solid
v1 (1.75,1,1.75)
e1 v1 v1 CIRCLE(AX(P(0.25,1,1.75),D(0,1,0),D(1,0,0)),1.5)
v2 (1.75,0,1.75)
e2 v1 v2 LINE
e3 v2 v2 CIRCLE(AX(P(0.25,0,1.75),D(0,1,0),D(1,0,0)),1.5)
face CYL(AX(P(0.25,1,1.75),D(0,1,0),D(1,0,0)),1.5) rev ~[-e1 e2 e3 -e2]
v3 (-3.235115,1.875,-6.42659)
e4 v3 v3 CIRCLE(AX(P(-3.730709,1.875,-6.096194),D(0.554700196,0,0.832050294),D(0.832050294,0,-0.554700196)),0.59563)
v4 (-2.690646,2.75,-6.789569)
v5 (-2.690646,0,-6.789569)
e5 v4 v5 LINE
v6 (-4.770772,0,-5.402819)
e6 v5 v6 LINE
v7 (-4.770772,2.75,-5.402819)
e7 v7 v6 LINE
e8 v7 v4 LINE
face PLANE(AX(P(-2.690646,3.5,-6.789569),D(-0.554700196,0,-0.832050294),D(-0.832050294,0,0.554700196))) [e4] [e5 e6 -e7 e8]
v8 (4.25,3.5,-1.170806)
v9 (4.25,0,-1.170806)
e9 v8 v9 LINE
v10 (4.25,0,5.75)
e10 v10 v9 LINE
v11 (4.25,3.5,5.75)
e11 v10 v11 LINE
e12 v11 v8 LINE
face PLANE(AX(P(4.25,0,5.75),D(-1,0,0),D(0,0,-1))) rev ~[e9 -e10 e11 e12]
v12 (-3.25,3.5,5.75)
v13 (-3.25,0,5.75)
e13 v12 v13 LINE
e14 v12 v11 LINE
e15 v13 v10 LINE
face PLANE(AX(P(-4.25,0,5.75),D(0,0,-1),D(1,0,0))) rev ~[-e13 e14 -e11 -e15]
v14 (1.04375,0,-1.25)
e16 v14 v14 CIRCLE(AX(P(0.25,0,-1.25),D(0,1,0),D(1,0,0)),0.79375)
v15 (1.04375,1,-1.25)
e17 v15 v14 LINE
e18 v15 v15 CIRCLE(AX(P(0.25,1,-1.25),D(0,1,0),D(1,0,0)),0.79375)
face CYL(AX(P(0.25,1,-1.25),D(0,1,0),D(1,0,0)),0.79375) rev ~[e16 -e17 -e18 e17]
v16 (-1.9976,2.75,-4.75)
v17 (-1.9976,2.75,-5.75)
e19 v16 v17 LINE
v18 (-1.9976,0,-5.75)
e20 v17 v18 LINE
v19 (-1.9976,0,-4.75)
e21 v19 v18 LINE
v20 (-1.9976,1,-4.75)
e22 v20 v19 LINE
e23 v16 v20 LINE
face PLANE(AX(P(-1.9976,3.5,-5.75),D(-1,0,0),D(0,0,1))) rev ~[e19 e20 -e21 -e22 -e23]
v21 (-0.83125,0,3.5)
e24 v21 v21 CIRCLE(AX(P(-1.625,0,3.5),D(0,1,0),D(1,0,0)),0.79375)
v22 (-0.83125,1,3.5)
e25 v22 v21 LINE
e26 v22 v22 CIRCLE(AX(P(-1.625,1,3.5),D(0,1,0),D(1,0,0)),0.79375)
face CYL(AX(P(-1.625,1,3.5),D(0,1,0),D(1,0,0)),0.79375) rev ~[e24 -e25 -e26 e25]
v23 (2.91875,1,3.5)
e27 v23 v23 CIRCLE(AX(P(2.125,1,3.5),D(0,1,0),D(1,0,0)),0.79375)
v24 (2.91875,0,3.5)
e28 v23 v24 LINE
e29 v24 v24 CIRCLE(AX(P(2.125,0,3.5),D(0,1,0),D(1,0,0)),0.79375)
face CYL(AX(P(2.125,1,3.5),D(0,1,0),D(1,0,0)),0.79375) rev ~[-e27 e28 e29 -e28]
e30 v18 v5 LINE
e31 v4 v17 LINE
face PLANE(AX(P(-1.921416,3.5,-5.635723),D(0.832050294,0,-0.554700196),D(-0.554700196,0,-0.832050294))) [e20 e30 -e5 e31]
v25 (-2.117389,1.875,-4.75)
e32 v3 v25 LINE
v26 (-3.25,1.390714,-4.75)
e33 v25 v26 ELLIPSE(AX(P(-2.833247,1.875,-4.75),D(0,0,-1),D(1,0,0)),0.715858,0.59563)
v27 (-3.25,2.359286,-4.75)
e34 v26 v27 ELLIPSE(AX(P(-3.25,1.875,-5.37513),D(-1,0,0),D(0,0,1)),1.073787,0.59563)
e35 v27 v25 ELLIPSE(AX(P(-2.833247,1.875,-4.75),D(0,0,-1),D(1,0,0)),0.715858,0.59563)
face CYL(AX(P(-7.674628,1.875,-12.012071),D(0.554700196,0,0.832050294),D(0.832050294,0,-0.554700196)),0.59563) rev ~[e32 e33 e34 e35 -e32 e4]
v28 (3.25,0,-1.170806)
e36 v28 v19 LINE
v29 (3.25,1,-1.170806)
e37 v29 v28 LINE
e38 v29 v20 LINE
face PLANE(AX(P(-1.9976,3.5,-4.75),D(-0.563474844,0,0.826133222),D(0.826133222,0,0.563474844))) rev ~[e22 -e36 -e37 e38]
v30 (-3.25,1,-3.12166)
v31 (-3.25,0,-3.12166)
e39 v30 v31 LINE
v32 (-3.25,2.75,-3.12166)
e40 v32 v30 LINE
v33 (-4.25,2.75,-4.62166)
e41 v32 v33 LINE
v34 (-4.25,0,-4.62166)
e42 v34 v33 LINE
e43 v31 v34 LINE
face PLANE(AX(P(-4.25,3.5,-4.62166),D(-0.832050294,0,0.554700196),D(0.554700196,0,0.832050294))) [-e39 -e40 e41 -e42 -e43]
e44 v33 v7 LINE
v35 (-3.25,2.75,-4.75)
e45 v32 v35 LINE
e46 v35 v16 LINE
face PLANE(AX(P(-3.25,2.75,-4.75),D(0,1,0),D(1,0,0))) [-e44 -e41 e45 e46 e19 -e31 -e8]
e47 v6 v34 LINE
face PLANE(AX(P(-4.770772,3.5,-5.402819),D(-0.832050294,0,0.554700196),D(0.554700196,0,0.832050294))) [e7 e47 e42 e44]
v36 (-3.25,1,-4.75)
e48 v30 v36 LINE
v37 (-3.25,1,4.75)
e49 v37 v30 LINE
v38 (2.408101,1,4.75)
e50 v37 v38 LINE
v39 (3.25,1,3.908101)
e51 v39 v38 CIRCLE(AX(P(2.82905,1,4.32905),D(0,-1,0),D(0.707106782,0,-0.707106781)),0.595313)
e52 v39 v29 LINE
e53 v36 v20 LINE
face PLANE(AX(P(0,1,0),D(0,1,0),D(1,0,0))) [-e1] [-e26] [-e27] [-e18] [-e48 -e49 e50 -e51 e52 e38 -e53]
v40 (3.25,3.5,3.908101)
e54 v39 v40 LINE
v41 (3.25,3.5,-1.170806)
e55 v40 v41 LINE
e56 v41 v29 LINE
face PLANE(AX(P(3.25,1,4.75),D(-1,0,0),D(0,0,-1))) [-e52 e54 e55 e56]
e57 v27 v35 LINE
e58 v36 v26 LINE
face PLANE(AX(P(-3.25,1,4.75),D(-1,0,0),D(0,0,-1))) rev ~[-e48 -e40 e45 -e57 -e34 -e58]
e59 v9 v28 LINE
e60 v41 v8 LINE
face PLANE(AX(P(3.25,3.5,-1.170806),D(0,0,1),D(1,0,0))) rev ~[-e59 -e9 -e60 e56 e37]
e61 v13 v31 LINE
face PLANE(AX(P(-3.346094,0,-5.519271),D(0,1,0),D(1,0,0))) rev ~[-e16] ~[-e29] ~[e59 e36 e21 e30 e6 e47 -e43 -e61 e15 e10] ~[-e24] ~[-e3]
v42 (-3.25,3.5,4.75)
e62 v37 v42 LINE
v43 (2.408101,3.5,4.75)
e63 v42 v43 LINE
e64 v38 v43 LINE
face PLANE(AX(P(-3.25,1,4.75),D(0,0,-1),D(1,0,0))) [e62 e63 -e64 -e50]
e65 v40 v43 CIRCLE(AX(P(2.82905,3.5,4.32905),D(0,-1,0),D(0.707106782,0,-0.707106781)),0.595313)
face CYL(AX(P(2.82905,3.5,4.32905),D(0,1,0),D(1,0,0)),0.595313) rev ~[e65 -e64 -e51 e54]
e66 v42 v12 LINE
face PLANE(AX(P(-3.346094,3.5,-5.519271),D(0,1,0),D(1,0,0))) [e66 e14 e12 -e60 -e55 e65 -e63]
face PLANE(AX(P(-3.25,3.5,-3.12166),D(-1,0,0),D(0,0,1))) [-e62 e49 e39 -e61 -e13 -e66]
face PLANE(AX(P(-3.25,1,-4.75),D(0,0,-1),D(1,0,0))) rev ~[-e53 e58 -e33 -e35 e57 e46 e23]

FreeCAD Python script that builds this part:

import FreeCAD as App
import Part
import Sketcher


def add_polygon(sketch, points):
    """Adds a closed chain of lines whose ends are joined by coincident constraints."""
    first, n = sketch.GeometryCount, len(points)
    for a, b in zip(points, points[1:] + points[:1]):
        sketch.addGeometry(Part.LineSegment(App.Vector(*a, 0), App.Vector(*b, 0)), False)
    for i in range(n):
        sketch.addConstraint(Sketcher.Constraint("Coincident", first + i, 2, first + (i + 1) % n, 1))

doc = App.newDocument("Part")
body = doc.addObject("PartDesign::Body", "Body")

# Sketch on XZ plane
sketch1 = body.newObject("Sketcher::SketchObject", "Sketch")
sketch1.AttachmentSupport = (doc.getObject("XZ_Plane"), [""])
sketch1.MapMode = "FlatFace"
add_polygon(sketch1, [(-4, -6), (-4, 6), (4, 6), (4, -6)])  # lines 0-3
sketch1.addConstraint(Sketcher.Constraint("Vertical", 0))
sketch1.addConstraint(Sketcher.Constraint("Horizontal", 1))
sketch1.addConstraint(Sketcher.Constraint("Vertical", 2))
sketch1.addConstraint(Sketcher.Constraint("Horizontal", 3))
sketch1.addConstraint(Sketcher.Constraint("Symmetric", 0, 2, 2, 2, -1, 1))
sketch1.addConstraint(Sketcher.Constraint("DistanceX", 1, 1, 1, 2, 8.5))
sketch1.addConstraint(Sketcher.Constraint("DistanceY", 0, 1, 0, 2, 11.5))
pad1 = body.newObject("PartDesign::Pad", "Pad")
pad1.Profile = sketch1
pad1.Length = 3.5
pad1.Reversed = True

# Sketch on XZ plane
sketch2 = body.newObject("Sketcher::SketchObject", "Sketch001")
sketch2.AttachmentSupport = (doc.getObject("XZ_Plane"), [""])
sketch2.MapMode = "FlatFace"
sketch2.AttachmentOffset = App.Placement(App.Vector(0, 0, -1), App.Rotation())
add_polygon(sketch2, [(-3, -5), (-3, 5), (3, 5), (3, -5)])  # lines 0-3
sketch2.addConstraint(Sketcher.Constraint("Vertical", 0))
sketch2.addConstraint(Sketcher.Constraint("Horizontal", 1))
sketch2.addConstraint(Sketcher.Constraint("Vertical", 2))
sketch2.addConstraint(Sketcher.Constraint("Horizontal", 3))
sketch2.addConstraint(Sketcher.Constraint("Symmetric", 0, 2, 2, 2, -1, 1))
sketch2.addConstraint(Sketcher.Constraint("DistanceX", 1, 1, 1, 2, 6.5))
sketch2.addConstraint(Sketcher.Constraint("DistanceY", 0, 1, 0, 2, 9.5))
pocket1 = body.newObject("PartDesign::Pocket", "Pocket")
pocket1.Profile = sketch2
pocket1.Length = 2.5

# Sketch on XZ plane
sketch3 = body.newObject("Sketcher::SketchObject", "Sketch002")
sketch3.AttachmentSupport = (doc.getObject("XZ_Plane"), [""])
sketch3.MapMode = "FlatFace"
sketch3.AttachmentOffset = App.Placement(App.Vector(0, 0, -1), App.Rotation())
sketch3.addGeometry(Part.Circle(App.Vector(0.2, 1.8, 0), App.Vector(0, 0, 1), 1.5), False)
sketch3.addConstraint(Sketcher.Constraint("Diameter", 0, 3.0))
sketch3.addConstraint(Sketcher.Constraint("DistanceX", -1, 1, 0, 3, 0.25))
sketch3.addConstraint(Sketcher.Constraint("DistanceY", -1, 1, 0, 3, 1.75))
pocket2 = body.newObject("PartDesign::Pocket", "Pocket001")
pocket2.Profile = sketch3
pocket2.Type = "ThroughAll"
pocket2.Reversed = True

# Sketch on XZ plane
sketch4 = body.newObject("Sketcher::SketchObject", "Sketch003")
sketch4.AttachmentSupport = (doc.getObject("XZ_Plane"), [""])
sketch4.MapMode = "FlatFace"
sketch4.AttachmentOffset = App.Placement(App.Vector(0, 0, -3.5), App.Rotation())
sketch4.addGeometry(Part.Circle(App.Vector(2.8, 4.3, 0), App.Vector(0, 0, 1), 0.6), False)
sketch4.addConstraint(Sketcher.Constraint("Diameter", 0, 1.190625))
sketch4.addConstraint(Sketcher.Constraint("DistanceX", -1, 1, 0, 3, 2.82905))
sketch4.addConstraint(Sketcher.Constraint("DistanceY", -1, 1, 0, 3, 4.32905))
pocket3 = body.newObject("PartDesign::Pocket", "Pocket002")
pocket3.Profile = sketch4
pocket3.Length = 2.5
pocket3.Reversed = True

# Sketch on XZ plane
sketch5 = body.newObject("Sketcher::SketchObject", "Sketch004")
sketch5.AttachmentSupport = (doc.getObject("XZ_Plane"), [""])
sketch5.MapMode = "FlatFace"
sketch5.AttachmentOffset = App.Placement(App.Vector(0, 0, -1), App.Rotation())
sketch5.addGeometry(Part.Circle(App.Vector(0.2, -1.2, 0), App.Vector(0, 0, 1), 0.8), False)
sketch5.addGeometry(Part.Circle(App.Vector(-1.6, 3.5, 0), App.Vector(0, 0, 1), 0.8), False)
sketch5.addGeometry(Part.Circle(App.Vector(2.1, 3.5, 0), App.Vector(0, 0, 1), 0.8), False)
sketch5.addConstraint(Sketcher.Constraint("Equal", 0, 1))
sketch5.addConstraint(Sketcher.Constraint("Equal", 1, 2))
sketch5.addConstraint(Sketcher.Constraint("Horizontal", 1, 3, 2, 3))
sketch5.addConstraint(Sketcher.Constraint("Diameter", 0, 1.5875))
sketch5.addConstraint(Sketcher.Constraint("DistanceY", -1, 1, 1, 3, 3.5))
sketch5.addConstraint(Sketcher.Constraint("DistanceX", -1, 1, 0, 3, 0.25))
sketch5.addConstraint(Sketcher.Constraint("DistanceY", 0, 3, -1, 1, 1.25))
sketch5.addConstraint(Sketcher.Constraint("DistanceX", 1, 3, 2, 3, 3.75))
sketch5.addConstraint(Sketcher.Constraint("DistanceX", 1, 3, -1, 1, 1.625))
pocket4 = body.newObject("PartDesign::Pocket", "Pocket003")
pocket4.Profile = sketch5
pocket4.Type = "ThroughAll"
pocket4.Reversed = True

# Sketch on XZ plane
sketch6 = body.newObject("Sketcher::SketchObject", "Sketch005")
sketch6.AttachmentSupport = (doc.getObject("XZ_Plane"), [""])
sketch6.MapMode = "FlatFace"
sketch6.AttachmentOffset = App.Placement(App.Vector(0, 0, -3.5), App.Rotation())
add_polygon(sketch6, [(-2.7, -6.8), (-4.8, -5.4), (-4, -4.2), (-3.4, -4.6), (-2.5, -5.2), (-1.9, -5.6)])  # lines 0-5
sketch6.addConstraint(Sketcher.Constraint("Perpendicular", 0, 1))
sketch6.addConstraint(Sketcher.Constraint("Perpendicular", 1, 2))
sketch6.addConstraint(Sketcher.Constraint("Parallel", 2, 3))
sketch6.addConstraint(Sketcher.Constraint("Parallel", 3, 4))
sketch6.addConstraint(Sketcher.Constraint("Perpendicular", 4, 5))
sketch6.addConstraint(Sketcher.Constraint("Equal", 2, 4))
sketch6.addConstraint(Sketcher.Constraint("Distance", 0, 2.5))
sketch6.addConstraint(Sketcher.Constraint("Distance", 1, 1.38675))
sketch6.addConstraint(Sketcher.Constraint("Distance", 2, 0.70898))
sketch6.addConstraint(Sketcher.Constraint("DistanceY", 0, 2, -1, 1, 5.402819))
sketch6.addConstraint(Sketcher.Constraint("DistanceX", 1, 2, -1, 1, 4.001541))
sketch6.addConstraint(Sketcher.Constraint("DistanceY", 3, 2, -1, 1, 5.242452))
pad2 = body.newObject("PartDesign::Pad", "Pad001")
pad2.Profile = sketch6
pad2.Length = 3.5

# Sketch on XZ plane
sketch7 = body.newObject("Sketcher::SketchObject", "Sketch006")
sketch7.AttachmentSupport = (doc.getObject("XZ_Plane"), [""])
sketch7.MapMode = "FlatFace"
sketch7.AttachmentOffset = App.Placement(App.Vector(0, 0, -3.5), App.Rotation())
add_polygon(sketch7, [(-6, -7), (-6, -2), (0, -2), (0, -7)])  # lines 0-3
sketch7.addConstraint(Sketcher.Constraint("Vertical", 0))
sketch7.addConstraint(Sketcher.Constraint("Horizontal", 1))
sketch7.addConstraint(Sketcher.Constraint("Vertical", 2))
sketch7.addConstraint(Sketcher.Constraint("Horizontal", 3))
sketch7.addConstraint(Sketcher.Constraint("DistanceX", 1, 1, 1, 2, 5.965259))
sketch7.addConstraint(Sketcher.Constraint("DistanceY", 0, 1, 0, 2, 5.13296))
sketch7.addConstraint(Sketcher.Constraint("DistanceX", 0, 2, -1, 1, 6.232629))
sketch7.addConstraint(Sketcher.Constraint("DistanceY", 0, 2, -1, 1, 2.18352))
pocket5 = body.newObject("PartDesign::Pocket", "Pocket004")
pocket5.Profile = sketch7
pocket5.Length = 0.75
pocket5.Reversed = True

# Sketch on an angled plane
sketch8 = body.newObject("Sketcher::SketchObject", "Sketch007")
sketch8.Placement = App.Placement(App.Vector(-3.961538, 0, -5.942308), App.Rotation(App.Vector(-0.832050294, 0, 0.554700196), App.Vector(0, 0.999999999, 0), App.Vector(-0.554700196, 0, -0.832050294), "ZXY"))
sketch8.addGeometry(Part.Circle(App.Vector(-0.3, 1.9, 0), App.Vector(0, 0, 1), 0.6), False)
sketch8.addConstraint(Sketcher.Constraint("Diameter", 0, 1.19126))
sketch8.addConstraint(Sketcher.Constraint("DistanceY", -1, 1, 0, 3, 1.875))
sketch8.addConstraint(Sketcher.Constraint("DistanceX", 0, 3, -1, 1, 0.277422))
doc.recompute()
hole = body.newObject("PartDesign::Hole", "Hole")
hole.Profile = sketch8
hole.ThreadType = "None"
hole.Diameter = 1.19126
hole.DepthType = "Dimension"
hole.Depth = 7.11
hole.DrillPoint = "Angled"
hole.DrillPointAngle = 118

# Sketch on XZ plane
sketch9 = body.newObject("Sketcher::SketchObject", "Sketch008")
sketch9.AttachmentSupport = (doc.getObject("XZ_Plane"), [""])
sketch9.MapMode = "FlatFace"
sketch9.AttachmentOffset = App.Placement(App.Vector(0, 0, -3.5), App.Rotation())
add_polygon(sketch9, [(-2, -5.8), (-2, -4.8), (3.2, -1.2), (4.2, -1.2), (4.2, -5.8)])  # lines 0-4
sketch9.addConstraint(Sketcher.Constraint("Vertical", 0))
sketch9.addConstraint(Sketcher.Constraint("Horizontal", 2))
sketch9.addConstraint(Sketcher.Constraint("Vertical", 3))
sketch9.addConstraint(Sketcher.Constraint("Horizontal", 4))
sketch9.addConstraint(Sketcher.Constraint("Equal", 2, 0))
sketch9.addConstraint(Sketcher.Constraint("DistanceX", 2, 1, 2, 2, 1.0))
sketch9.addConstraint(Sketcher.Constraint("DistanceY", 0, 2, -1, 1, 4.75))
sketch9.addConstraint(Sketcher.Constraint("DistanceX", -1, 1, 1, 2, 3.25))
sketch9.addConstraint(Sketcher.Constraint("DistanceX", 4, 2, 4, 1, 6.2476))
sketch9.addConstraint(Sketcher.Constraint("DistanceY", 3, 2, 3, 1, 4.579194))
pocket6 = body.newObject("PartDesign::Pocket", "Pocket005")
pocket6.Profile = sketch9
pocket6.Length = 3.5
pocket6.Reversed = True

# Sketch on XZ plane
sketch10 = body.newObject("Sketcher::SketchObject", "Sketch009")
sketch10.AttachmentSupport = (doc.getObject("XZ_Plane"), [""])
sketch10.MapMode = "FlatFace"
sketch10.AttachmentOffset = App.Placement(App.Vector(0, 0, -3.5), App.Rotation())
add_polygon(sketch10, [(-3.2, -3.1), (-4.2, -4.6), (-4.2, 5.8), (-3.2, 5.8)])  # lines 0-3
sketch10.addConstraint(Sketcher.Constraint("Vertical", 1))
sketch10.addConstraint(Sketcher.Constraint("Horizontal", 2))
sketch10.addConstraint(Sketcher.Constraint("Vertical", 3))
sketch10.addConstraint(Sketcher.Constraint("DistanceX", 2, 1, 2, 2, 1.0))
sketch10.addConstraint(Sketcher.Constraint("DistanceY", 0, 2, 3, 2, 1.5))
sketch10.addConstraint(Sketcher.Constraint("DistanceX", 0, 2, -1, 1, 4.25))
sketch10.addConstraint(Sketcher.Constraint("DistanceY", -1, 1, 1, 2, 5.75))
sketch10.addConstraint(Sketcher.Constraint("DistanceY", 1, 1, 1, 2, 10.37166))
pocket7 = body.newObject("PartDesign::Pocket", "Pocket006")
pocket7.Profile = sketch10
pocket7.Type = "UpToFirst"
pocket7.Reversed = True

doc.recompute()
